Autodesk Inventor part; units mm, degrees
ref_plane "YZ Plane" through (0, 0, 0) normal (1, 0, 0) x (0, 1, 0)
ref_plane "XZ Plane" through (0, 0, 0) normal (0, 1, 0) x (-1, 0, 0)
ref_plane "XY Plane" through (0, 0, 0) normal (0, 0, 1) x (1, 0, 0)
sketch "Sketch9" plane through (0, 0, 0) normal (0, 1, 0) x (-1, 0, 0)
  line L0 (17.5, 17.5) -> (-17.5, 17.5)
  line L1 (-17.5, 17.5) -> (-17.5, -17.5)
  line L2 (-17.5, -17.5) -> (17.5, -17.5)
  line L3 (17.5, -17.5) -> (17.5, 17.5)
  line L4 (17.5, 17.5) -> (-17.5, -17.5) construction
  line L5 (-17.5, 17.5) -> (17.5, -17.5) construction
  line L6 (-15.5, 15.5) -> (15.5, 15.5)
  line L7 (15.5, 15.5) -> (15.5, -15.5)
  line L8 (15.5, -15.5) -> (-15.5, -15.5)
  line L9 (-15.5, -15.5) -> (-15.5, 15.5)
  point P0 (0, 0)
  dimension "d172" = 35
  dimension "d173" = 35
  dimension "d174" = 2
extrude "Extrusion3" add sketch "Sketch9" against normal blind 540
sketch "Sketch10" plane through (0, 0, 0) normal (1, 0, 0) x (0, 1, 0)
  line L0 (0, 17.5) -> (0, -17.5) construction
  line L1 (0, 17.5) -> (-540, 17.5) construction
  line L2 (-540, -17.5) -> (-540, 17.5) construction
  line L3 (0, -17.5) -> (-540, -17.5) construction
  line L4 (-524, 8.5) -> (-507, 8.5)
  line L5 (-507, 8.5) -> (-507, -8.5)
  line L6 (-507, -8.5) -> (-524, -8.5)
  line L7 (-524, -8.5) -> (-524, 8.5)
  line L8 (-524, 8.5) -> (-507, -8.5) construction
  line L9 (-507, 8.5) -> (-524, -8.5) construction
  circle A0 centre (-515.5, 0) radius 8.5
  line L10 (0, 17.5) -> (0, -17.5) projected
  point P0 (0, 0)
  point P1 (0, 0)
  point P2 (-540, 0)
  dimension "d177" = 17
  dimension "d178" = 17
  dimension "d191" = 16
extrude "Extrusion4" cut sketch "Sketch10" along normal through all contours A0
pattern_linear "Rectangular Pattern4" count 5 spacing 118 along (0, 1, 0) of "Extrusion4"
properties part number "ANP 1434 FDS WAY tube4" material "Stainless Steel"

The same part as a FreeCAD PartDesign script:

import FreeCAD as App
import Part
import Sketcher

doc = App.newDocument("Part")
params = doc.addObject("Spreadsheet::Sheet", "Params")
for row, (alias, value) in enumerate([
    ("sketch1_width", "35 mm"),
    ("pad1_length", "540 mm"),
    ("sketch2_diameter", "17 mm"),
    ("linearpattern_pitch", "118 mm"),
], start=1):
    params.set(f"A{row}", alias)
    params.set(f"B{row}", "=" + value)
    params.setAlias(f"B{row}", alias)

body = doc.addObject("PartDesign::Body", "Body")

# Sketch on XZ plane
sketch1 = body.newObject("Sketcher::SketchObject", "Sketch")
sketch1.AttachmentSupport = (doc.getObject("XZ_Plane"), [""])
sketch1.MapMode = "FlatFace"
sketch1.addGeometry([
    Part.LineSegment(App.Vector(-18, -18, 0), App.Vector(-18, 18, 0)),  # 0
    Part.LineSegment(App.Vector(-18, 18, 0), App.Vector(18, 18, 0)),  # 1
    Part.LineSegment(App.Vector(18, 18, 0), App.Vector(18, -18, 0)),  # 2
    Part.LineSegment(App.Vector(18, -18, 0), App.Vector(-18, -18, 0)),  # 3
    Part.LineSegment(App.Vector(16, -16, 0), App.Vector(16, 16, 0)),  # 4
    Part.LineSegment(App.Vector(16, 16, 0), App.Vector(-16, 16, 0)),  # 5
    Part.LineSegment(App.Vector(-16, 16, 0), App.Vector(-16, -16, 0)),  # 6
    Part.LineSegment(App.Vector(-16, -16, 0), App.Vector(16, -16, 0)),  # 7
], False)
sketch1.addConstraint([
    Sketcher.Constraint("Coincident", 0, 2, 1, 1),
    Sketcher.Constraint("Coincident", 1, 2, 2, 1),
    Sketcher.Constraint("Coincident", 2, 2, 3, 1),
    Sketcher.Constraint("Coincident", 3, 2, 0, 1),
    Sketcher.Constraint("Coincident", 4, 2, 5, 1),
    Sketcher.Constraint("Coincident", 5, 2, 6, 1),
    Sketcher.Constraint("Coincident", 6, 2, 7, 1),
    Sketcher.Constraint("Coincident", 7, 2, 4, 1),
    Sketcher.Constraint("Vertical", 0),
    Sketcher.Constraint("Horizontal", 1),
    Sketcher.Constraint("Vertical", 2),
    Sketcher.Constraint("Horizontal", 3),
    Sketcher.Constraint("Vertical", 4),
    Sketcher.Constraint("Horizontal", 5),
    Sketcher.Constraint("Vertical", 6),
    Sketcher.Constraint("Horizontal", 7),
    Sketcher.Constraint("Symmetric", 0, 2, 2, 2, -1, 1),
    Sketcher.Constraint("Symmetric", 4, 2, 6, 2, -1, 1),
    Sketcher.Constraint("Equal", 3, 0),
    Sketcher.Constraint("Equal", 7, 4),
    Sketcher.Constraint("DistanceX", 1, 1, 1, 2, 35.0),
    Sketcher.Constraint("DistanceX", 4, 2, 1, 2, 2.0),
])
sketch1.setExpression("Constraints[20]", "Params.sketch1_width")
pad1 = body.newObject("PartDesign::Pad", "Pad")
pad1.Profile = sketch1
pad1.setExpression("Length", "Params.pad1_length")

# Sketch on YZ plane
sketch2 = body.newObject("Sketcher::SketchObject", "Sketch001")
sketch2.AttachmentSupport = (doc.getObject("YZ_Plane"), [""])
sketch2.MapMode = "FlatFace"
sketch2.addGeometry(Part.Circle(App.Vector(-516, 0, 0), App.Vector(0, 0, 1), 8), False)
sketch2.addConstraint([
    Sketcher.Constraint("PointOnObject", 0, 3, -1),
    Sketcher.Constraint("Diameter", 0, 17.0),
    Sketcher.Constraint("DistanceX", 0, 3, -1, 1, 515.5),
])
sketch2.setExpression("Constraints[1]", "Params.sketch2_diameter")
pocket1 = body.newObject("PartDesign::Pocket", "Pocket")
pocket1.Profile = sketch2
pocket1.Type = "ThroughAll"
pocket1.Reversed = True
doc.recompute()

linearpattern = body.newObject("PartDesign::LinearPattern", "LinearPattern")
linearpattern.Originals = [pocket1]
linearpattern.Direction = (doc.getObject("Y_Axis"), [""])
linearpattern.Mode = "offset"
linearpattern.setExpression("Offset", "Params.linearpattern_pitch")
linearpattern.Occurrences = 5
body.Tip = linearpattern

doc.recompute()
